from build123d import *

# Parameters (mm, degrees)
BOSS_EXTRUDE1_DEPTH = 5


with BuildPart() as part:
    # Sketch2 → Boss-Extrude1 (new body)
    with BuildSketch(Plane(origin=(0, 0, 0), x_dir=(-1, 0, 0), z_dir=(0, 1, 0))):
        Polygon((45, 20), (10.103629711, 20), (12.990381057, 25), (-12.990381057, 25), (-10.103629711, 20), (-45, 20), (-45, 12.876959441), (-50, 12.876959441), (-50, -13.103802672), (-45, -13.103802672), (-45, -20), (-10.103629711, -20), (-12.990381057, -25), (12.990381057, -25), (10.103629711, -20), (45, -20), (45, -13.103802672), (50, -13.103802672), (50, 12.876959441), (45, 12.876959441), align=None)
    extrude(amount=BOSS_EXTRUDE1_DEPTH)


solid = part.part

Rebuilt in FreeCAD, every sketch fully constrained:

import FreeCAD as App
import Part
import Sketcher
Q = App.Units.Quantity

doc = App.newDocument("Part")
body = doc.addObject("PartDesign::Body", "Body")

# Sketch on XZ plane
sketch1 = body.newObject("Sketcher::SketchObject", "Sketch")
sketch1.AttachmentSupport = (doc.getObject("XZ_Plane"), [""])
sketch1.MapMode = "FlatFace"
sketch1.addGeometry([
    Part.LineSegment(App.Vector(-45, 20, 0), App.Vector(-10, 20, 0)),  # 0
    Part.LineSegment(App.Vector(-10, 20, 0), App.Vector(-13, 25, 0)),  # 1
    Part.LineSegment(App.Vector(-13, 25, 0), App.Vector(13, 25, 0)),  # 2
    Part.LineSegment(App.Vector(13, 25, 0), App.Vector(10, 20, 0)),  # 3
    Part.LineSegment(App.Vector(10, 20, 0), App.Vector(45, 20, 0)),  # 4
    Part.LineSegment(App.Vector(45, 20, 0), App.Vector(45, 13, 0)),  # 5
    Part.LineSegment(App.Vector(45, 13, 0), App.Vector(50, 13, 0)),  # 6
    Part.LineSegment(App.Vector(50, 13, 0), App.Vector(50, -13, 0)),  # 7
    Part.LineSegment(App.Vector(50, -13, 0), App.Vector(45, -13, 0)),  # 8
    Part.LineSegment(App.Vector(45, -13, 0), App.Vector(45, -20, 0)),  # 9
    Part.LineSegment(App.Vector(45, -20, 0), App.Vector(10, -20, 0)),  # 10
    Part.LineSegment(App.Vector(10, -20, 0), App.Vector(13, -25, 0)),  # 11
    Part.LineSegment(App.Vector(13, -25, 0), App.Vector(-13, -25, 0)),  # 12
    Part.LineSegment(App.Vector(-13, -25, 0), App.Vector(-10, -20, 0)),  # 13
    Part.LineSegment(App.Vector(-10, -20, 0), App.Vector(-45, -20, 0)),  # 14
    Part.LineSegment(App.Vector(-45, -20, 0), App.Vector(-45, -13, 0)),  # 15
    Part.LineSegment(App.Vector(-45, -13, 0), App.Vector(-50, -13, 0)),  # 16
    Part.LineSegment(App.Vector(-50, -13, 0), App.Vector(-50, 13, 0)),  # 17
    Part.LineSegment(App.Vector(-50, 13, 0), App.Vector(-45, 13, 0)),  # 18
    Part.LineSegment(App.Vector(-45, 13, 0), App.Vector(-45, 20, 0)),  # 19
], False)
sketch1.addConstraint([
    Sketcher.Constraint("Coincident", 0, 2, 1, 1),
    Sketcher.Constraint("Coincident", 1, 2, 2, 1),
    Sketcher.Constraint("Coincident", 2, 2, 3, 1),
    Sketcher.Constraint("Coincident", 3, 2, 4, 1),
    Sketcher.Constraint("Coincident", 4, 2, 5, 1),
    Sketcher.Constraint("Coincident", 5, 2, 6, 1),
    Sketcher.Constraint("Coincident", 6, 2, 7, 1),
    Sketcher.Constraint("Coincident", 7, 2, 8, 1),
    Sketcher.Constraint("Coincident", 8, 2, 9, 1),
    Sketcher.Constraint("Coincident", 9, 2, 10, 1),
    Sketcher.Constraint("Coincident", 10, 2, 11, 1),
    Sketcher.Constraint("Coincident", 11, 2, 12, 1),
    Sketcher.Constraint("Coincident", 12, 2, 13, 1),
    Sketcher.Constraint("Coincident", 13, 2, 14, 1),
    Sketcher.Constraint("Coincident", 14, 2, 15, 1),
    Sketcher.Constraint("Coincident", 15, 2, 16, 1),
    Sketcher.Constraint("Coincident", 16, 2, 17, 1),
    Sketcher.Constraint("Coincident", 17, 2, 18, 1),
    Sketcher.Constraint("Coincident", 18, 2, 19, 1),
    Sketcher.Constraint("Coincident", 19, 2, 0, 1),
    Sketcher.Constraint("Horizontal", 0),
    Sketcher.Constraint("Horizontal", 2),
    Sketcher.Constraint("Horizontal", 4),
    Sketcher.Constraint("Vertical", 5),
    Sketcher.Constraint("Horizontal", 6),
    Sketcher.Constraint("Vertical", 7),
    Sketcher.Constraint("Horizontal", 8),
    Sketcher.Constraint("Vertical", 9),
    Sketcher.Constraint("Horizontal", 10),
    Sketcher.Constraint("Horizontal", 12),
    Sketcher.Constraint("Horizontal", 14),
    Sketcher.Constraint("Vertical", 15),
    Sketcher.Constraint("Horizontal", 16),
    Sketcher.Constraint("Vertical", 17),
    Sketcher.Constraint("Horizontal", 18),
    Sketcher.Constraint("Vertical", 19),
    Sketcher.Constraint("Symmetric", 0, 2, 10, 2, -1, 1),
    Sketcher.Constraint("Symmetric", 1, 2, 11, 2, -1, 1),
    Sketcher.Constraint("Symmetric", 3, 2, 13, 2, -1, 1),
    Sketcher.Constraint("Symmetric", 0, 2, 3, 2, -2),
    Sketcher.Constraint("Symmetric", 8, 2, 15, 2, -2),
    Sketcher.Constraint("Symmetric", 6, 2, 17, 2, -2),
    Sketcher.Constraint("Parallel", 3, 13),
    Sketcher.Constraint("Vertical", 5, 2, 8, 2),
    Sketcher.Constraint("Vertical", 2, 2, 11, 2),
    Sketcher.Constraint("Vertical", 15, 2, 18, 2),
    Sketcher.Constraint("Equal", 12, 7),
    Sketcher.Constraint("DistanceX", 6, 1, 6, 2, 5.0),
    Sketcher.Constraint("Angle", 1, Q("120 deg")),
    Sketcher.Constraint("DistanceY", -1, 1, 0, 2, 20.0),
    Sketcher.Constraint("DistanceY", -1, 1, 1, 2, 25.0),
    Sketcher.Constraint("DistanceX", -1, 1, 4, 2, 45.0),
    Sketcher.Constraint("DistanceX", 0, 1, 0, 2, 34.89637),
    Sketcher.Constraint("DistanceY", 5, 2, 5, 1, 7.123041),
])
pad1 = body.newObject("PartDesign::Pad", "Pad")
pad1.Profile = sketch1
pad1.Length = 5
pad1.Reversed = True

doc.recompute()
